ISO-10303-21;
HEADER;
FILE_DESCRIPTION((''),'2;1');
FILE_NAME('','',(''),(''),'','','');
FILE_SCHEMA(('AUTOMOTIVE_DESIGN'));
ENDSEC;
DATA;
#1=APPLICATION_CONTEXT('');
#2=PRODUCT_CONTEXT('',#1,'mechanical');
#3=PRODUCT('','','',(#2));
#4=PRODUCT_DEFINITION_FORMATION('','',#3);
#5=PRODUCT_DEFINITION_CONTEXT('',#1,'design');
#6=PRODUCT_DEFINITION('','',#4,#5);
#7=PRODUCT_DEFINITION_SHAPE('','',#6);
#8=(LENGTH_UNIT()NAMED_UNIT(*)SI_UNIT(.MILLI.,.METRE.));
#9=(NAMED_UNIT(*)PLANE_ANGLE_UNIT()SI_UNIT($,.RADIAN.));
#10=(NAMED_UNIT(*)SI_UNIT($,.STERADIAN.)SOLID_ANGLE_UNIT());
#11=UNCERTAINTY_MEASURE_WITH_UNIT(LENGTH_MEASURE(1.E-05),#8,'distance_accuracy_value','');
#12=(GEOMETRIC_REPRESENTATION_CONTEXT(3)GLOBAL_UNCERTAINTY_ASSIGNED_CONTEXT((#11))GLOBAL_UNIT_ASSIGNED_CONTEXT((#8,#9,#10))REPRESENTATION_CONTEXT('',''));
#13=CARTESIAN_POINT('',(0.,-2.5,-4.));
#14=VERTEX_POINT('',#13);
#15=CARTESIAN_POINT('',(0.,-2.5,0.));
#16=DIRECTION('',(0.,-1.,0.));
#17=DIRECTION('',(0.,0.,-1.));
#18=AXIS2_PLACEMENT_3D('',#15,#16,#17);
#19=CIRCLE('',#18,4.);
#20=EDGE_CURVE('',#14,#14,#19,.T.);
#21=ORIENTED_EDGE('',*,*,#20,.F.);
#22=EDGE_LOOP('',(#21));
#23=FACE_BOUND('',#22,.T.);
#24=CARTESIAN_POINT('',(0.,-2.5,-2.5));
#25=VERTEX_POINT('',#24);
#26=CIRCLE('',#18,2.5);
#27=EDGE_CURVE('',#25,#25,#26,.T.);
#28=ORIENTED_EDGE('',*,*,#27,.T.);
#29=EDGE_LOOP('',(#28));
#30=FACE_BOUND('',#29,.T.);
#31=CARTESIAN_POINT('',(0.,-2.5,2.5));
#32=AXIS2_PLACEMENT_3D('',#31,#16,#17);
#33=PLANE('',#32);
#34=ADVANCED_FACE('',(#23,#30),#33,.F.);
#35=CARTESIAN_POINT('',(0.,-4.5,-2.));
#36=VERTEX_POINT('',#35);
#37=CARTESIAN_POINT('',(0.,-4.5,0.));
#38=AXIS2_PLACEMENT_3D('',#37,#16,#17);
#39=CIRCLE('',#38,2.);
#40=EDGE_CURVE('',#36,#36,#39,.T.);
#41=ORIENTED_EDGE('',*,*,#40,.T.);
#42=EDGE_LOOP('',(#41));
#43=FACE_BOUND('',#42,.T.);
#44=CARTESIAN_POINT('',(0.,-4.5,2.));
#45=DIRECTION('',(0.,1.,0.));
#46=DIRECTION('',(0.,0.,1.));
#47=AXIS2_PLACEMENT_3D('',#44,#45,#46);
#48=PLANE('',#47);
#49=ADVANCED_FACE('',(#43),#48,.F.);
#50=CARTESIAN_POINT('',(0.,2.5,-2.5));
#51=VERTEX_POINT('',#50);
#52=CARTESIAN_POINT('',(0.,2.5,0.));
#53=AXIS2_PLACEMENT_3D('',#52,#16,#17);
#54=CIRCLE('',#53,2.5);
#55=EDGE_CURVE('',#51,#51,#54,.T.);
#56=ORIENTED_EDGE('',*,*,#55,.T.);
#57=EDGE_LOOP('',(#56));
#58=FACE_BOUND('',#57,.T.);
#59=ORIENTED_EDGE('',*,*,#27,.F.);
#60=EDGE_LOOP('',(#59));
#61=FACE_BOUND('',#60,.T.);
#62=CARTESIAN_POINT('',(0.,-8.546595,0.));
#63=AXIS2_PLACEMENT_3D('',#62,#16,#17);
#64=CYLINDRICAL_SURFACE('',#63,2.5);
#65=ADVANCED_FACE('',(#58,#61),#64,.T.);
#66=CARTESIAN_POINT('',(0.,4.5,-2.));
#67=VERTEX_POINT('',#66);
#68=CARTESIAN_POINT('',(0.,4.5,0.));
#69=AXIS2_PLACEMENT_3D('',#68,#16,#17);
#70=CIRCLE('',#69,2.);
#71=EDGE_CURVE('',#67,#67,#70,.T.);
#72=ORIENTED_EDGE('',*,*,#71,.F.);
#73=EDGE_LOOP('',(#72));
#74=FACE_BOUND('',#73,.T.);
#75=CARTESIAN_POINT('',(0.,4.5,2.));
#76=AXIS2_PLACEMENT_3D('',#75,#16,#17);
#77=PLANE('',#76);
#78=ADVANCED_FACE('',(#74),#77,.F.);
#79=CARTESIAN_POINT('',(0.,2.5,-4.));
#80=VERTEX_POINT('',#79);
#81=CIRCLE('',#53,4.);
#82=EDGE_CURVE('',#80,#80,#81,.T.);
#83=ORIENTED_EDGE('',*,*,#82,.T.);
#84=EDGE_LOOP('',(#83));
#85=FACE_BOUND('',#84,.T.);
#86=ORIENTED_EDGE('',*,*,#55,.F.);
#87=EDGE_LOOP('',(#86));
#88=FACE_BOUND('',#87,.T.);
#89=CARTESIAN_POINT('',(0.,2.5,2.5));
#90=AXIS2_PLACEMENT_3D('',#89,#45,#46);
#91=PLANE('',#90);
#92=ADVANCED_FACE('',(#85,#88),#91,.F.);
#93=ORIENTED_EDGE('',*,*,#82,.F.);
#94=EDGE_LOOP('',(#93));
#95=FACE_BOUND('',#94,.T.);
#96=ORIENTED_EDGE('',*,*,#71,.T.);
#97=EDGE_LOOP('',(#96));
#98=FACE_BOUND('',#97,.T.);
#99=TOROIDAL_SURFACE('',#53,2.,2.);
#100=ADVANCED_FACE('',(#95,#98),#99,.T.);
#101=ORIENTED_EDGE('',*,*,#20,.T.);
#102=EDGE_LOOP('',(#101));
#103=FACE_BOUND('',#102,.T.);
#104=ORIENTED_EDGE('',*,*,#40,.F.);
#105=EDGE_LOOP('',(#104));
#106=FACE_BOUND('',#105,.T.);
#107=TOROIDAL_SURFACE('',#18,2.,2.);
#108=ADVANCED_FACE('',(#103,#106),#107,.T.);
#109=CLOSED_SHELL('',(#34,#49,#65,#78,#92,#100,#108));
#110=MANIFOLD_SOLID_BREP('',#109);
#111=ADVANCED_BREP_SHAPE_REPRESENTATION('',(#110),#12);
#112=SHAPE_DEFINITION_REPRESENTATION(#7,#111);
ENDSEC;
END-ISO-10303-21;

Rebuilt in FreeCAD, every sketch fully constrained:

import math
import FreeCAD as App
import Part
import Sketcher
from FreeCAD import Vector

doc = App.newDocument("Part")
body = doc.addObject("PartDesign::Body", "Body")

# Sketch on YZ plane
sketch1 = doc.addObject("Sketcher::SketchObject", "Sketch")
body.addObject(sketch1)
sketch1.AttachmentSupport = (doc.YZ_Plane, [""])
sketch1.MapMode = "FlatFace"
sketch1.addGeometry([
    Part.LineSegment(Vector(2.5, 2.5, 0), Vector(-2.5, 2.5, 0)),  # 0
    Part.LineSegment(Vector(-2.5, 2.5, 0), Vector(-2.5, 4, 0)),  # 1
    Part.ArcOfCircle(Part.Circle(Vector(-2.5, 2, 0), Vector(0, 0, 1), 2), math.radians(90), math.radians(180)),  # 2
    Part.LineSegment(Vector(-4.5, 2, 0), Vector(-4.5, 0, 0)),  # 3
    Part.LineSegment(Vector(-4.5, 0, 0), Vector(4.5, 0, 0)),  # 4
    Part.LineSegment(Vector(4.5, 0, 0), Vector(4.5, 2, 0)),  # 5
    Part.ArcOfCircle(Part.Circle(Vector(2.5, 2, 0), Vector(0, 0, 1), 2), math.radians(0), math.radians(90)),  # 6
    Part.LineSegment(Vector(2.5, 4, 0), Vector(2.5, 2.5, 0)),  # 7
], False)
sketch1.addConstraint([
    Sketcher.Constraint("Coincident", 0, 2, 1, 1),
    Sketcher.Constraint("Coincident", 1, 2, 2, 1),
    Sketcher.Constraint("Tangent", 2, 2, 3, 1),
    Sketcher.Constraint("Coincident", 3, 2, 4, 1),
    Sketcher.Constraint("Coincident", 4, 2, 5, 1),
    Sketcher.Constraint("Tangent", 5, 2, 6, 1),
    Sketcher.Constraint("Coincident", 6, 2, 7, 1),
    Sketcher.Constraint("Coincident", 7, 2, 0, 1),
    Sketcher.Constraint("Horizontal", 0),
    Sketcher.Constraint("Vertical", 1),
    Sketcher.Constraint("Vertical", 3),
    Sketcher.Constraint("Horizontal", 4),
    Sketcher.Constraint("Vertical", 5),
    Sketcher.Constraint("Vertical", 7),
    Sketcher.Constraint("Equal", 2, 6),
    Sketcher.Constraint("Symmetric", 3, 2, 4, 2, -1, 1),
    Sketcher.Constraint("Symmetric", 1, 2, 6, 2, -2),
    Sketcher.Constraint("Vertical", 2, 3, 0, 2),
    Sketcher.Constraint("Radius", 2, 2.0),
    Sketcher.Constraint("DistanceX", 0, 2, 0, 1, 5.0),
    Sketcher.Constraint("DistanceY", 3, 2, 3, 1, 2.0),
    Sketcher.Constraint("DistanceY", 1, 1, 1, 2, 1.5),
])
revolution = doc.addObject("PartDesign::Revolution", "Revolution")
body.addObject(revolution)
revolution.Profile = sketch1
revolution.ReferenceAxis = (sketch1, ["H_Axis"])
revolution.Angle = 360

doc.recompute()
